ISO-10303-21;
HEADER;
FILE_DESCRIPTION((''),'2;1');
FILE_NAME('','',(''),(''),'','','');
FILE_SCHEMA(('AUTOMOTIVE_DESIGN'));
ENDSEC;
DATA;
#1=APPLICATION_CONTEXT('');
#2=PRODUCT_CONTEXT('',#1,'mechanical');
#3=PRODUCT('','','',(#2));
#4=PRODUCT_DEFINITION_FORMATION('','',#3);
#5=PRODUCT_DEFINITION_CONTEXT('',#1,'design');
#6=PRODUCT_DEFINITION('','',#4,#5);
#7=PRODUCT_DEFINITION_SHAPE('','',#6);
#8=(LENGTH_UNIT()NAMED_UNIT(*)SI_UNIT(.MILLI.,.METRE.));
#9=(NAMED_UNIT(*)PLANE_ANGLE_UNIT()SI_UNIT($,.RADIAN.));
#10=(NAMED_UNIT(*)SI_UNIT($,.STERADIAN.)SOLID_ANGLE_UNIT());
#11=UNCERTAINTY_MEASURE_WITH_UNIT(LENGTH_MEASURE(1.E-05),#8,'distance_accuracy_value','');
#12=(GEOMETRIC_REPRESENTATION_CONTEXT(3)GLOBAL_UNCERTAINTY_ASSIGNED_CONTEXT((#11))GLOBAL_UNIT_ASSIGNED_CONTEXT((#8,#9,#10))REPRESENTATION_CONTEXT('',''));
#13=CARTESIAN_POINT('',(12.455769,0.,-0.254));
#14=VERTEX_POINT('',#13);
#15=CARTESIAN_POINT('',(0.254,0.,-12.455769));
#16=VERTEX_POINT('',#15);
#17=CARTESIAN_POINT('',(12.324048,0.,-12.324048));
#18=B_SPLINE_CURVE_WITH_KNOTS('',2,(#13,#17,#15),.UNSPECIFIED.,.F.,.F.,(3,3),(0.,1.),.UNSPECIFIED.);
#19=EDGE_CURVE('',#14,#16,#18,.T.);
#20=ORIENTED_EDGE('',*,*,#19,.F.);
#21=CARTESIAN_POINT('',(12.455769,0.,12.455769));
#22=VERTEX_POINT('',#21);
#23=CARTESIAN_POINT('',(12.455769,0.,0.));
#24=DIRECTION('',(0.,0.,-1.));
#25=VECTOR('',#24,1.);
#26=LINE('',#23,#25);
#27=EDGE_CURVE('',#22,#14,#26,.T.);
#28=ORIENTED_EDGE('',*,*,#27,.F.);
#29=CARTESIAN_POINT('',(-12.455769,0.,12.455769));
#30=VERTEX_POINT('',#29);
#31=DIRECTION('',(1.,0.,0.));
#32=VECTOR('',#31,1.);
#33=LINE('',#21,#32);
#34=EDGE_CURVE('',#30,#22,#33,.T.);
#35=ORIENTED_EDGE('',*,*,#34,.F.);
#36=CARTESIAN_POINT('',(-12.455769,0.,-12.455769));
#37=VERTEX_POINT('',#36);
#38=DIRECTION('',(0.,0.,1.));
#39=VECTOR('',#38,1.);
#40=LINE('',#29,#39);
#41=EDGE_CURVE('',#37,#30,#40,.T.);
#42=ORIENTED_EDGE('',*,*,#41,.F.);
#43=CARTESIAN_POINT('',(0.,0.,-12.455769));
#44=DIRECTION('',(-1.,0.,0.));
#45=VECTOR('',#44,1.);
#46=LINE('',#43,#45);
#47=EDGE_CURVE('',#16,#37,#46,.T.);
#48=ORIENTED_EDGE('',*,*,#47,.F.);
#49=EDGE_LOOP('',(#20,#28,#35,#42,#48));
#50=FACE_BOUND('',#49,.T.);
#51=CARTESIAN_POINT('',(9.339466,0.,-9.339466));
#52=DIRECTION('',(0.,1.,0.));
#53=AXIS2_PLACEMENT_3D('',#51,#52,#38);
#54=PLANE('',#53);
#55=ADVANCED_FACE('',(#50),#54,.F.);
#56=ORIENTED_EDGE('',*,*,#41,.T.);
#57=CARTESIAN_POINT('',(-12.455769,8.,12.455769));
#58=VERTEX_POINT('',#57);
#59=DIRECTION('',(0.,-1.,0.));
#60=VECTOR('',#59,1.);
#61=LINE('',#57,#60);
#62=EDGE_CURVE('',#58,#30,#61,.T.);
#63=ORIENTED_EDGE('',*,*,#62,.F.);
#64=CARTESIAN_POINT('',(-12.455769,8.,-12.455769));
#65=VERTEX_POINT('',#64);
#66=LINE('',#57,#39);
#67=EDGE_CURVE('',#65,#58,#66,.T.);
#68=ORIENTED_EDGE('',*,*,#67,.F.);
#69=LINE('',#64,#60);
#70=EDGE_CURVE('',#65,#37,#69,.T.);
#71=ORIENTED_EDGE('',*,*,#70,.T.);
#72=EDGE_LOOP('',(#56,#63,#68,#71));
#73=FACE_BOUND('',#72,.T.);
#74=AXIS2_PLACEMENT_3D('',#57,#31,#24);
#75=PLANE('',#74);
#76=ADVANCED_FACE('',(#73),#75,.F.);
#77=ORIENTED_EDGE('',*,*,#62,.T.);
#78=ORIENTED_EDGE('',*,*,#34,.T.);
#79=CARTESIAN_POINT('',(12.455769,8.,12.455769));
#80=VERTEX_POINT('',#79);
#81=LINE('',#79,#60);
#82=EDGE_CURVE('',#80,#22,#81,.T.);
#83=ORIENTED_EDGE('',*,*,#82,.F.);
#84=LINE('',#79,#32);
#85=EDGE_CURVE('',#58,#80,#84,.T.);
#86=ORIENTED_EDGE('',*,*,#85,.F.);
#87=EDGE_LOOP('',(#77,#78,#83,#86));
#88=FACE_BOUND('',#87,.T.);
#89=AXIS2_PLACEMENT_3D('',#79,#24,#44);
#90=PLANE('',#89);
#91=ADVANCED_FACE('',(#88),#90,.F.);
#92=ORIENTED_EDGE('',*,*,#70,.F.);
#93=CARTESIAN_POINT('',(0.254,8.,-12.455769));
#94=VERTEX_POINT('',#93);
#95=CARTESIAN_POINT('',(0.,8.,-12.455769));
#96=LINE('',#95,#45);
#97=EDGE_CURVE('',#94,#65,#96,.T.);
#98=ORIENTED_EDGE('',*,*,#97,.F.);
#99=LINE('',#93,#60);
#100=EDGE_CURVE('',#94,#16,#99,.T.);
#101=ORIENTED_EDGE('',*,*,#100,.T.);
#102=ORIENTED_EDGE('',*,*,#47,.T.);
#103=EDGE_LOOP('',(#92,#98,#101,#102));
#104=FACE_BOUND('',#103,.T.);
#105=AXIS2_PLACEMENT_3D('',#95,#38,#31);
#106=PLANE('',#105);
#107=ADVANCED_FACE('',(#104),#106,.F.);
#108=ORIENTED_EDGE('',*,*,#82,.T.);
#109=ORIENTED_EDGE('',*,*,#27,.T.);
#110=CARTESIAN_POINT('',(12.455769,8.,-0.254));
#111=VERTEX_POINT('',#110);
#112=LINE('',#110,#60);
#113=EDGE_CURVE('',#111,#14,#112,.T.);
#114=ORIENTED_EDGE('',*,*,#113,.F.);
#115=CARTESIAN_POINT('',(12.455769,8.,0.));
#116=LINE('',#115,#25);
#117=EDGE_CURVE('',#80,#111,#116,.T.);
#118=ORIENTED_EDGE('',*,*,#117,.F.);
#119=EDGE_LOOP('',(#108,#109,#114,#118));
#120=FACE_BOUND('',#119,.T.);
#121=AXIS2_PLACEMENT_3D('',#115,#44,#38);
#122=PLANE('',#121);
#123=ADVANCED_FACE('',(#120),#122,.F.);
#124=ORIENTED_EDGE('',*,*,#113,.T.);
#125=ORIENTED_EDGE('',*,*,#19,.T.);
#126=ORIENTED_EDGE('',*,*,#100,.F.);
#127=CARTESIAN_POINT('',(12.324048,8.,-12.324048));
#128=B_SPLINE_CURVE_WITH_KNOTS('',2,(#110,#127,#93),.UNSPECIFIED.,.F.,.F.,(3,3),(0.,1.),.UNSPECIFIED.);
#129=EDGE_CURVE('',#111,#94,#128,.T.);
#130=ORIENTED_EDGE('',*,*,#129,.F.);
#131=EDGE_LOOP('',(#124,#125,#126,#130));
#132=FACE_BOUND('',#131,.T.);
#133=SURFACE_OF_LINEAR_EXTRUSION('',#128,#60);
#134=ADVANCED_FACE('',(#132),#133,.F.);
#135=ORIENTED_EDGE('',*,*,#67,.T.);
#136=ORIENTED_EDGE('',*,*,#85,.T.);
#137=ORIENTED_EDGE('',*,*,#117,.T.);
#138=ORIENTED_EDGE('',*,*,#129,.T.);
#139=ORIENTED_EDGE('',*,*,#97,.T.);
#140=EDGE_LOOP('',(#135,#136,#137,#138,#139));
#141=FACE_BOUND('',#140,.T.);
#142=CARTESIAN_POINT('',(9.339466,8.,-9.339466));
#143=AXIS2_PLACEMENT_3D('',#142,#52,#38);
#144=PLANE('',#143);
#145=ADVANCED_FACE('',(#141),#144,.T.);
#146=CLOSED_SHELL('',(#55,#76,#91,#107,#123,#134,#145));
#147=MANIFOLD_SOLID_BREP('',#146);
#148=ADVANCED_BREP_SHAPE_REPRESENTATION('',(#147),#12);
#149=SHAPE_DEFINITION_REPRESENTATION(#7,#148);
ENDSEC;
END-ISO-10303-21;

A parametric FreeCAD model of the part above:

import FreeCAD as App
import Part
import Sketcher

doc = App.newDocument("Part")
body = doc.addObject("PartDesign::Body", "Body")

sketch1 = body.newObject("Sketcher::SketchObject", "Sketch")
sketch1.AttachmentSupport = (doc.getObject("XZ_Plane"), [""])
sketch1.MapMode = "FlatFace"
sketch1.addGeometry([
    Part.LineSegment(App.Vector(-12.455769, -12.455769, 0), App.Vector(-12.455769, 12.455769, 0)),
    Part.LineSegment(App.Vector(-12.455769, 12.455769, 0), App.Vector(12.455769, 12.455769, 0)),
    Part.LineSegment(App.Vector(12.455769, 12.455769, 0), App.Vector(12.455769, -0.254, 0)),
    Part.BSplineCurve([App.Vector(0.254, -12.455769, 0), App.Vector(12.324048, -12.324048, 0), App.Vector(12.455769, -0.254, 0)], [3, 3], [0, 1], False, 2, [1, 1, 1], False),
    Part.LineSegment(App.Vector(0.254, -12.455769, 0), App.Vector(-12.455769, -12.455769, 0)),
], False)
sketch1.addConstraint([
    Sketcher.Constraint("Block", 3),
    Sketcher.Constraint("Coincident", 0, 2, 1, 1),
    Sketcher.Constraint("Coincident", 1, 2, 2, 1),
    Sketcher.Constraint("Coincident", 2, 2, 3, 2),
    Sketcher.Constraint("Coincident", 3, 1, 4, 1),
    Sketcher.Constraint("Coincident", 4, 2, 0, 1),
    Sketcher.Constraint("Vertical", 0),
    Sketcher.Constraint("Horizontal", 1),
    Sketcher.Constraint("Vertical", 2),
    Sketcher.Constraint("Horizontal", 4),
    Sketcher.Constraint("Symmetric", 1, 2, 4, 2, -1, 1),
])
pad1 = body.newObject("PartDesign::Pad", "Pad")
pad1.Profile = sketch1
pad1.Length = 8
pad1.Reversed = True

doc.recompute()
